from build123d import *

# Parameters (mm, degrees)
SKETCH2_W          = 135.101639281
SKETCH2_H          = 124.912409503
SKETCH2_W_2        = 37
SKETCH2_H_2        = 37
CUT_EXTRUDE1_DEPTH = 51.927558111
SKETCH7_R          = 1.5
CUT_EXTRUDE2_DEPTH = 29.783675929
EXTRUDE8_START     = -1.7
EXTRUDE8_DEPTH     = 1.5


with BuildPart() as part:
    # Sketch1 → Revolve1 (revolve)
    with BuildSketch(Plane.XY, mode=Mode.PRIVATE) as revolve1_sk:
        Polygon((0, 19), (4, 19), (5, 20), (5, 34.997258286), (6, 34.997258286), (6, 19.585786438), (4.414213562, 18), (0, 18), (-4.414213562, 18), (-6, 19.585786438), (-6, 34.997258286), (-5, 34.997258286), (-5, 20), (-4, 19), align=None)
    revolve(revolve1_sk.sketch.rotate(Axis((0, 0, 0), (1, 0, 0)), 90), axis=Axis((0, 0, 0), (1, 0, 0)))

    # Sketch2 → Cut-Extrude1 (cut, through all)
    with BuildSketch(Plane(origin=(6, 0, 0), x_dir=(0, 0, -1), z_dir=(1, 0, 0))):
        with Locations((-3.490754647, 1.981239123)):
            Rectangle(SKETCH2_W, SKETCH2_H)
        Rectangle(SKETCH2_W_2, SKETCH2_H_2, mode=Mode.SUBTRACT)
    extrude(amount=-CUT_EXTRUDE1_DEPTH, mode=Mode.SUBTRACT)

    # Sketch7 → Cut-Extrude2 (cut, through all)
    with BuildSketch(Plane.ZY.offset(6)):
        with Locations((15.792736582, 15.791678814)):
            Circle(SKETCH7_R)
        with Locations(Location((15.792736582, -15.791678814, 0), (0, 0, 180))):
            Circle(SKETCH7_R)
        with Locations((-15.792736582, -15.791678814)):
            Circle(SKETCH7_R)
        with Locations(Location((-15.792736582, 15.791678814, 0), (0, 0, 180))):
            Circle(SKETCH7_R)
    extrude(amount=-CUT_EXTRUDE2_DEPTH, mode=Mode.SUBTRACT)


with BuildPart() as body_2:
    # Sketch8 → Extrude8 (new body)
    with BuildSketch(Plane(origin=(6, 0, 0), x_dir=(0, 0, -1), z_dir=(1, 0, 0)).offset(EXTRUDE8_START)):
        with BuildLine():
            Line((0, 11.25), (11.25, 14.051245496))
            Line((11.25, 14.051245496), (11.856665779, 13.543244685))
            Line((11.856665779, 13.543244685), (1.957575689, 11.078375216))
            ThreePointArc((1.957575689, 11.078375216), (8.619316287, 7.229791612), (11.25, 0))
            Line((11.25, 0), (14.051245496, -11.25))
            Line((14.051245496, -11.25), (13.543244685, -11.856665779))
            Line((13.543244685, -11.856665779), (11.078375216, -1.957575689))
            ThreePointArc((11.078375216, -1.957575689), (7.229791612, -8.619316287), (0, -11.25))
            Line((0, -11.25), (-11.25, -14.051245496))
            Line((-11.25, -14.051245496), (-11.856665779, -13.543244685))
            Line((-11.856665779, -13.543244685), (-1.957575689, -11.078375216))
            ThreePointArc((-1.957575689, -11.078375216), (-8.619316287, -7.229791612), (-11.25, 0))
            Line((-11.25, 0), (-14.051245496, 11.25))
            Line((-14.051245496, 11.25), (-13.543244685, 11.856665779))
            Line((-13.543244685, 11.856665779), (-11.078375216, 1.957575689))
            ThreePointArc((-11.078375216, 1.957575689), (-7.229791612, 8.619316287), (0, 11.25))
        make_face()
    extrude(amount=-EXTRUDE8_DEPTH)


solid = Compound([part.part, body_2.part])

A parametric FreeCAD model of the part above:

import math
import FreeCAD as App
import Part
import Sketcher
Q = App.Units.Quantity

doc = App.newDocument("Part")
body = doc.addObject("PartDesign::Body", "Body")

# Sketch on XY plane
sketch1 = body.newObject("Sketcher::SketchObject", "Sketch")
sketch1.AttachmentSupport = (doc.getObject("XY_Plane"), [""])
sketch1.MapMode = "FlatFace"
sketch1.addGeometry([
    Part.LineSegment(App.Vector(4, 19, 0), App.Vector(-4, 19, 0)),  # 0
    Part.LineSegment(App.Vector(-4, 19, 0), App.Vector(-5, 20, 0)),  # 1
    Part.LineSegment(App.Vector(-5, 20, 0), App.Vector(-5, 35, 0)),  # 2
    Part.LineSegment(App.Vector(-5, 35, 0), App.Vector(-6, 35, 0)),  # 3
    Part.LineSegment(App.Vector(-6, 35, 0), App.Vector(-6, 19.6, 0)),  # 4
    Part.LineSegment(App.Vector(-6, 19.6, 0), App.Vector(-4.4, 18, 0)),  # 5
    Part.LineSegment(App.Vector(-4.4, 18, 0), App.Vector(4.4, 18, 0)),  # 6
    Part.LineSegment(App.Vector(4.4, 18, 0), App.Vector(6, 19.6, 0)),  # 7
    Part.LineSegment(App.Vector(6, 19.6, 0), App.Vector(6, 35, 0)),  # 8
    Part.LineSegment(App.Vector(6, 35, 0), App.Vector(5, 35, 0)),  # 9
    Part.LineSegment(App.Vector(5, 35, 0), App.Vector(5, 20, 0)),  # 10
    Part.LineSegment(App.Vector(5, 20, 0), App.Vector(4, 19, 0)),  # 11
], False)
sketch1.addConstraint([
    Sketcher.Constraint("Coincident", 0, 2, 1, 1),
    Sketcher.Constraint("Coincident", 1, 2, 2, 1),
    Sketcher.Constraint("Coincident", 2, 2, 3, 1),
    Sketcher.Constraint("Coincident", 3, 2, 4, 1),
    Sketcher.Constraint("Coincident", 4, 2, 5, 1),
    Sketcher.Constraint("Coincident", 5, 2, 6, 1),
    Sketcher.Constraint("Coincident", 6, 2, 7, 1),
    Sketcher.Constraint("Coincident", 7, 2, 8, 1),
    Sketcher.Constraint("Coincident", 8, 2, 9, 1),
    Sketcher.Constraint("Coincident", 9, 2, 10, 1),
    Sketcher.Constraint("Coincident", 10, 2, 11, 1),
    Sketcher.Constraint("Coincident", 11, 2, 0, 1),
    Sketcher.Constraint("Horizontal", 0),
    Sketcher.Constraint("Vertical", 2),
    Sketcher.Constraint("Horizontal", 3),
    Sketcher.Constraint("Vertical", 4),
    Sketcher.Constraint("Horizontal", 6),
    Sketcher.Constraint("Vertical", 8),
    Sketcher.Constraint("Horizontal", 9),
    Sketcher.Constraint("Vertical", 10),
    Sketcher.Constraint("Symmetric", 4, 2, 7, 2, -2),
    Sketcher.Constraint("Symmetric", 2, 2, 9, 2, -2),
    Sketcher.Constraint("Parallel", 1, 5),
    Sketcher.Constraint("Perpendicular", 5, 7),
    Sketcher.Constraint("Parallel", 7, 11),
    Sketcher.Constraint("Horizontal", 1, 2, 10, 2),
    Sketcher.Constraint("Equal", 5, 7),
    Sketcher.Constraint("DistanceX", 0, 2, 0, 1, Q("8 mm")),
    Sketcher.Constraint("DistanceX", 3, 2, 3, 1, Q("1 mm")),
    Sketcher.Constraint("DistanceY", -1, 1, 0, 2, Q("19 mm")),
    Sketcher.Constraint("DistanceX", 1, 2, -1, 1, Q("5 mm")),
    Sketcher.Constraint("DistanceY", -1, 1, 5, 2, Q("18 mm")),
    Sketcher.Constraint("DistanceY", 2, 1, 2, 2, Q("14.997258 mm")),
    Sketcher.Constraint("DistanceY", 4, 2, 4, 1, Q("15.411472 mm")),
])
revolution = body.newObject("PartDesign::Revolution", "Revolution")
revolution.Profile = sketch1
revolution.ReferenceAxis = (sketch1, ["H_Axis"])
revolution.Angle = 360

# Sketch on YZ plane
sketch2 = body.newObject("Sketcher::SketchObject", "Sketch001")
sketch2.AttachmentSupport = (doc.getObject("YZ_Plane"), [""])
sketch2.MapMode = "FlatFace"
sketch2.AttachmentOffset = App.Placement(App.Vector(0, 0, 6), App.Rotation())
sketch2.addGeometry([
    Part.LineSegment(App.Vector(64, 71, 0), App.Vector(-60, 71, 0)),  # 0
    Part.LineSegment(App.Vector(-60, 71, 0), App.Vector(-60, -64, 0)),  # 1
    Part.LineSegment(App.Vector(-60, -64, 0), App.Vector(64, -64, 0)),  # 2
    Part.LineSegment(App.Vector(64, -64, 0), App.Vector(64, 71, 0)),  # 3
    Part.LineSegment(App.Vector(-18, -18, 0), App.Vector(-18, 18, 0)),  # 4
    Part.LineSegment(App.Vector(-18, 18, 0), App.Vector(18, 18, 0)),  # 5
    Part.LineSegment(App.Vector(18, 18, 0), App.Vector(18, -18, 0)),  # 6
    Part.LineSegment(App.Vector(18, -18, 0), App.Vector(-18, -18, 0)),  # 7
], False)
sketch2.addConstraint([
    Sketcher.Constraint("Coincident", 0, 2, 1, 1),
    Sketcher.Constraint("Coincident", 1, 2, 2, 1),
    Sketcher.Constraint("Coincident", 2, 2, 3, 1),
    Sketcher.Constraint("Coincident", 3, 2, 0, 1),
    Sketcher.Constraint("Coincident", 4, 2, 5, 1),
    Sketcher.Constraint("Coincident", 5, 2, 6, 1),
    Sketcher.Constraint("Coincident", 6, 2, 7, 1),
    Sketcher.Constraint("Coincident", 7, 2, 4, 1),
    Sketcher.Constraint("Horizontal", 0),
    Sketcher.Constraint("Vertical", 1),
    Sketcher.Constraint("Horizontal", 2),
    Sketcher.Constraint("Vertical", 3),
    Sketcher.Constraint("Vertical", 4),
    Sketcher.Constraint("Horizontal", 5),
    Sketcher.Constraint("Vertical", 6),
    Sketcher.Constraint("Horizontal", 7),
    Sketcher.Constraint("Symmetric", 4, 2, 6, 2, -1, 1),
    Sketcher.Constraint("Equal", 7, 4),
    Sketcher.Constraint("DistanceX", 5, 1, 5, 2, Q("37 mm")),
    Sketcher.Constraint("DistanceX", 0, 2, 0, 1, Q("124.91241 mm")),
    Sketcher.Constraint("DistanceY", 1, 2, 1, 1, Q("135.101639 mm")),
    Sketcher.Constraint("DistanceX", 0, 2, -1, 1, Q("60.474966 mm")),
    Sketcher.Constraint("DistanceY", -1, 1, 0, 2, Q("71.041574 mm")),
])
pocket1 = body.newObject("PartDesign::Pocket", "Pocket")
pocket1.Profile = sketch2
pocket1.Type = "ThroughAll"

# Sketch on YZ plane
sketch3 = body.newObject("Sketcher::SketchObject", "Sketch002")
sketch3.AttachmentSupport = (doc.getObject("YZ_Plane"), [""])
sketch3.MapMode = "FlatFace"
sketch3.AttachmentOffset = App.Placement(App.Vector(0, 0, -6), App.Rotation())
sketch3.addGeometry([
    Part.Circle(App.Vector(15.8, 15.8, 0), App.Vector(0, 0, 1), 1.5),
    Part.Circle(App.Vector(-15.8, 15.8, 0), App.Vector(0, 0, 1), 1.5),
    Part.Circle(App.Vector(-15.8, -15.8, 0), App.Vector(0, 0, 1), 1.5),
    Part.Circle(App.Vector(15.8, -15.8, 0), App.Vector(0, 0, 1), 1.5),
], False)
sketch3.addConstraint([
    Sketcher.Constraint("Equal", 0, 1),
    Sketcher.Constraint("Equal", 1, 2),
    Sketcher.Constraint("Equal", 2, 3),
    Sketcher.Constraint("Symmetric", 0, 3, 2, 3, -1, 1),
    Sketcher.Constraint("Symmetric", 1, 3, 3, 3, -1, 1),
    Sketcher.Constraint("Symmetric", 0, 3, 1, 3, -2),
    Sketcher.Constraint("Diameter", 0, Q("3 mm")),
    Sketcher.Constraint("DistanceX", -1, 1, 0, 3, Q("15.791679 mm")),
    Sketcher.Constraint("DistanceY", -1, 1, 0, 3, Q("15.792737 mm")),
])
pocket2 = body.newObject("PartDesign::Pocket", "Pocket001")
pocket2.Profile = sketch3
pocket2.Type = "ThroughAll"
pocket2.Reversed = True
body2 = doc.addObject("PartDesign::Body", "Body001")

# Sketch on YZ plane
sketch4 = body2.newObject("Sketcher::SketchObject", "Sketch003")
sketch4.AttachmentSupport = (doc.getObject("YZ_Plane001"), [""])
sketch4.MapMode = "FlatFace"
sketch4.AttachmentOffset = App.Placement(App.Vector(0, 0, 4.3), App.Rotation())
sketch4.addGeometry([
    Part.LineSegment(App.Vector(14.1, -11.2, 0), App.Vector(11.2, 0, 0)),  # 0
    Part.ArcOfCircle(Part.Circle(App.Vector(0, 0, 0), App.Vector(0, 0, 1), 11.2), math.radians(0), math.radians(80)),  # 1
    Part.LineSegment(App.Vector(2, 11.1, 0), App.Vector(11.9, 13.5, 0)),  # 2
    Part.LineSegment(App.Vector(11.9, 13.5, 0), App.Vector(11.2, 14.1, 0)),  # 3
    Part.LineSegment(App.Vector(11.2, 14.1, 0), App.Vector(0, 11.2, 0)),  # 4
    Part.ArcOfCircle(Part.Circle(App.Vector(0, 0, 0), App.Vector(0, 0, 1), 11.2), math.radians(90), math.radians(170)),  # 5
    Part.LineSegment(App.Vector(-11.1, 2, 0), App.Vector(-13.5, 11.9, 0)),  # 6
    Part.LineSegment(App.Vector(-13.5, 11.9, 0), App.Vector(-14.1, 11.2, 0)),  # 7
    Part.LineSegment(App.Vector(-14.1, 11.2, 0), App.Vector(-11.2, 0, 0)),  # 8
    Part.ArcOfCircle(Part.Circle(App.Vector(0, 0, 0), App.Vector(0, 0, 1), 11.2), math.radians(180), math.radians(260)),  # 9
    Part.LineSegment(App.Vector(-2, -11.1, 0), App.Vector(-11.9, -13.5, 0)),  # 10
    Part.LineSegment(App.Vector(-11.9, -13.5, 0), App.Vector(-11.2, -14.1, 0)),  # 11
    Part.LineSegment(App.Vector(-11.2, -14.1, 0), App.Vector(0, -11.2, 0)),  # 12
    Part.ArcOfCircle(Part.Circle(App.Vector(0, 0, 0), App.Vector(0, 0, 1), 11.2), math.radians(-90), math.radians(-10)),  # 13
    Part.LineSegment(App.Vector(11.1, -2, 0), App.Vector(13.5, -11.9, 0)),  # 14
    Part.LineSegment(App.Vector(13.5, -11.9, 0), App.Vector(14.1, -11.2, 0)),  # 15
], False)
sketch4.addConstraint([
    Sketcher.Constraint("Coincident", 0, 2, 1, 1),
    Sketcher.Constraint("Coincident", 1, 2, 2, 1),
    Sketcher.Constraint("Coincident", 2, 2, 3, 1),
    Sketcher.Constraint("Coincident", 3, 2, 4, 1),
    Sketcher.Constraint("Coincident", 4, 2, 5, 1),
    Sketcher.Constraint("Coincident", 5, 2, 6, 1),
    Sketcher.Constraint("Coincident", 6, 2, 7, 1),
    Sketcher.Constraint("Coincident", 7, 2, 8, 1),
    Sketcher.Constraint("Coincident", 8, 2, 9, 1),
    Sketcher.Constraint("Coincident", 9, 2, 10, 1),
    Sketcher.Constraint("Coincident", 10, 2, 11, 1),
    Sketcher.Constraint("Coincident", 11, 2, 12, 1),
    Sketcher.Constraint("Coincident", 12, 2, 13, 1),
    Sketcher.Constraint("Coincident", 13, 2, 14, 1),
    Sketcher.Constraint("Coincident", 14, 2, 15, 1),
    Sketcher.Constraint("Coincident", 15, 2, 0, 1),
    Sketcher.Constraint("Coincident", 1, 3, -1, 1),
    Sketcher.Constraint("Coincident", 5, 3, -1, 1),
    Sketcher.Constraint("Coincident", 9, 3, -1, 1),
    Sketcher.Constraint("Coincident", 13, 3, -1, 1),
    Sketcher.Constraint("Equal", 1, 5),
    Sketcher.Constraint("Equal", 5, 9),
    Sketcher.Constraint("Equal", 9, 13),
    Sketcher.Constraint("Symmetric", 2, 2, 10, 2, -1, 1),
    Sketcher.Constraint("Symmetric", 3, 2, 11, 2, -1, 1),
    Sketcher.Constraint("Symmetric", 6, 2, 14, 2, -1, 1),
    Sketcher.Constraint("Symmetric", 7, 2, 15, 2, -1, 1),
    Sketcher.Constraint("PointOnObject", 0, 2, -1),
    Sketcher.Constraint("PointOnObject", 4, 2, -2),
    Sketcher.Constraint("PointOnObject", 8, 2, -1),
    Sketcher.Constraint("PointOnObject", 12, 2, -2),
    Sketcher.Constraint("Perpendicular", 0, 2),
    Sketcher.Constraint("Parallel", 2, 4),
    Sketcher.Constraint("Perpendicular", 4, 6),
    Sketcher.Constraint("Perpendicular", 3, 7),
    Sketcher.Constraint("Perpendicular", 8, 10),
    Sketcher.Constraint("Perpendicular", 12, 14),
    Sketcher.Constraint("Horizontal", 4, 2, 7, 2),
    Sketcher.Constraint("Vertical", 0, 2, 3, 2),
    Sketcher.Constraint("Equal", 2, 6),
    Sketcher.Constraint("Radius", 1, Q("11.25 mm")),
    Sketcher.Constraint("DistanceY", 2, 2, 3, 2, Q("0.508001 mm")),
    Sketcher.Constraint("Distance", 0, Q("11.59351 mm")),
    Sketcher.Constraint("Distance", 2, Q("10.201351 mm")),
])
pad1 = body2.newObject("PartDesign::Pad", "Pad")
pad1.Profile = sketch4
pad1.Length = 1.5
pad1.Reversed = True

doc.recompute()
